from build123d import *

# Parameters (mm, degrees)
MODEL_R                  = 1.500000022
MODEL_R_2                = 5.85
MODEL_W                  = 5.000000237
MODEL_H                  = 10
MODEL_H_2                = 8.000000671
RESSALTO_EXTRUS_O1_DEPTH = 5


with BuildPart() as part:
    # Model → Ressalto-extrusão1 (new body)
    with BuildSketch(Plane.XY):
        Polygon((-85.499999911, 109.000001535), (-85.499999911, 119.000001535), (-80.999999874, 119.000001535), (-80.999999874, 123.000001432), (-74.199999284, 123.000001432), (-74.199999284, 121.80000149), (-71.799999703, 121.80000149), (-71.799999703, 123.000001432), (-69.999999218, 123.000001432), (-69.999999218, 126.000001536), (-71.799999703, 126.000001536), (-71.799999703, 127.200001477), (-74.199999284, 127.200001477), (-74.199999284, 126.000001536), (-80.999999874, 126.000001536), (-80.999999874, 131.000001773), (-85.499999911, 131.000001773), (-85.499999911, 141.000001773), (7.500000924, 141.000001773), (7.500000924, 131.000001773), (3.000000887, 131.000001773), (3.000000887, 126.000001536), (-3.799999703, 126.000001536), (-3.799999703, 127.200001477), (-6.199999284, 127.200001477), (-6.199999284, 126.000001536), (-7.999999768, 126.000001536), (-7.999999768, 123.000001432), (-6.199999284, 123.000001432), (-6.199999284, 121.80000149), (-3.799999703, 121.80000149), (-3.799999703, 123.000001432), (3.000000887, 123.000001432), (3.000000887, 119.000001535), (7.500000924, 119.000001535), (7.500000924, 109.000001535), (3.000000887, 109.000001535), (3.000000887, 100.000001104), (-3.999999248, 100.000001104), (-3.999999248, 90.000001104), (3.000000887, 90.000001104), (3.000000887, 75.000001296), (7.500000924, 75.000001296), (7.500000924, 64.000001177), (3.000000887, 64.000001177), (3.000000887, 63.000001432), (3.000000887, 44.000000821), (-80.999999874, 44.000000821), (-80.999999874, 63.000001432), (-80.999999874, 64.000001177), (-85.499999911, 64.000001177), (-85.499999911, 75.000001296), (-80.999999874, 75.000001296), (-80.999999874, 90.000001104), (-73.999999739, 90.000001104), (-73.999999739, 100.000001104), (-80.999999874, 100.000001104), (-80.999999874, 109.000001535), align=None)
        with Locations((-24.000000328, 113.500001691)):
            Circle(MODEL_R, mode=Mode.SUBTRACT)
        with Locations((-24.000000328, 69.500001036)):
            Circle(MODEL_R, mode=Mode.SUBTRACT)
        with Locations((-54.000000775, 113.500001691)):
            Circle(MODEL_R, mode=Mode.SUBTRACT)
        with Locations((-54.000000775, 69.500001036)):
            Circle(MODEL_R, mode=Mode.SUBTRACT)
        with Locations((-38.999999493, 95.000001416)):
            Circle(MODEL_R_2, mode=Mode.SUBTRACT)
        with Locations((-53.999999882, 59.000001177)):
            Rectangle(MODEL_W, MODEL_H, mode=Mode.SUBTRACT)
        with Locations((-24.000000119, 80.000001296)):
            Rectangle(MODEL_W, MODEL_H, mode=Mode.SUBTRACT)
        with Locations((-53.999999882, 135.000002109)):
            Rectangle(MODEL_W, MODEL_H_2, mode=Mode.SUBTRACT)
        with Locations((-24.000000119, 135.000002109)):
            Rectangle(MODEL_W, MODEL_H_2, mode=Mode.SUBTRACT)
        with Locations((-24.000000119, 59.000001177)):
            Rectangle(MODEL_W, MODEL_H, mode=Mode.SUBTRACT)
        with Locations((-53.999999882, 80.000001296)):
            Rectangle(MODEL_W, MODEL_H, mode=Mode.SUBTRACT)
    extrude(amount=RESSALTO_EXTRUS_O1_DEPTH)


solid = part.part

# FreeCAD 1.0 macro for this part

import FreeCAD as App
import Part
import Sketcher
from FreeCAD import Vector
Q = App.Units.Quantity


def add_polygon(sketch, points):
    """Adds a closed chain of lines whose ends are joined by coincident constraints."""
    first, n = sketch.GeometryCount, len(points)
    for a, b in zip(points, points[1:] + points[:1]):
        sketch.addGeometry(Part.LineSegment(App.Vector(*a, 0), App.Vector(*b, 0)), False)
    for i in range(n):
        sketch.addConstraint(Sketcher.Constraint("Coincident", first + i, 2, first + (i + 1) % n, 1))

doc = App.newDocument("Part")
params = doc.addObject("Spreadsheet::Sheet", "Params")
for row, (alias, value) in enumerate([
    ("sketch1_diameter", "3 mm"),
    ("sketch1_diameter2", "11.7 mm"),
    ("sketch1_width", "7 mm"),
    ("sketch1_width2", "84.000001 mm"),
    ("sketch1_width3", "93.000001 mm"),
    ("pad1_length", "5 mm"),
], start=1):
    params.set(f"A{row}", alias)
    params.set(f"B{row}", "=" + value)
    params.setAlias(f"B{row}", alias)

body = doc.addObject("PartDesign::Body", "Body")

# Sketch on XY plane
sketch1 = doc.addObject("Sketcher::SketchObject", "Sketch")
body.addObject(sketch1)
sketch1.AttachmentSupport = (doc.XY_Plane, [""])
sketch1.MapMode = "FlatFace"
add_polygon(sketch1, [(-85.5, 119), (-85.5, 109), (-81, 109), (-81, 100), (-74, 100), (-74, 90), (-81, 90), (-81, 75), (-85.5, 75), (-85.5, 64), (-81, 64), (-81, 44), (3, 44), (3, 64), (7.5, 64), (7.5, 75), (3, 75), (3, 90), (-4, 90), (-4, 100), (3, 100), (3, 109), (7.5, 109), (7.5, 119), (3, 119), (3, 123), (-3.8, 123), (-3.8, 121.8), (-6.2, 121.8), (-6.2, 123), (-8, 123), (-8, 126), (-6.2, 126), (-6.2, 127.2), (-3.8, 127.2), (-3.8, 126), (3, 126), (3, 131), (7.5, 131), (7.5, 141), (-85.5, 141), (-85.5, 131), (-81, 131), (-81, 126), (-74.2, 126), (-74.2, 127.2), (-71.8, 127.2), (-71.8, 126), (-70, 126), (-70, 123), (-71.8, 123), (-71.8, 121.8), (-74.2, 121.8), (-74.2, 123), (-81, 123), (-81, 119)])  # lines 0-55
add_polygon(sketch1, [(-26.5, 54), (-26.5, 64), (-21.5, 64), (-21.5, 54)])  # lines 56-59
sketch1.addGeometry(Part.Circle(Vector(-24, 69.5, 0), Vector(0, 0, 1), 1.5), False)  # 60
add_polygon(sketch1, [(-26.5, 75), (-26.5, 85), (-21.5, 85), (-21.5, 75)])  # lines 61-64
sketch1.addGeometry(Part.Circle(Vector(-39, 95, 0), Vector(0, 0, 1), 5.8), False)  # 65
add_polygon(sketch1, [(-56.5, 54), (-56.5, 64), (-51.5, 64), (-51.5, 54)])  # lines 66-69
sketch1.addGeometry(Part.Circle(Vector(-54, 69.5, 0), Vector(0, 0, 1), 1.5), False)  # 70
add_polygon(sketch1, [(-56.5, 75), (-56.5, 85), (-51.5, 85), (-51.5, 75)])  # lines 71-74
sketch1.addGeometry(Part.Circle(Vector(-24, 113.5, 0), Vector(0, 0, 1), 1.5), False)  # 75
add_polygon(sketch1, [(-26.5, 131), (-26.5, 139), (-21.5, 139), (-21.5, 131)])  # lines 76-79
sketch1.addGeometry(Part.Circle(Vector(-54, 113.5, 0), Vector(0, 0, 1), 1.5), False)  # 80
add_polygon(sketch1, [(-56.5, 131), (-56.5, 139), (-51.5, 139), (-51.5, 131)])  # lines 81-84
sketch1.addConstraint(Sketcher.Constraint("Vertical", 0))
sketch1.addConstraint(Sketcher.Constraint("Horizontal", 1))
sketch1.addConstraint(Sketcher.Constraint("Vertical", 2))
sketch1.addConstraint(Sketcher.Constraint("Horizontal", 3))
sketch1.addConstraint(Sketcher.Constraint("Vertical", 4))
sketch1.addConstraint(Sketcher.Constraint("Horizontal", 5))
sketch1.addConstraint(Sketcher.Constraint("Vertical", 6))
sketch1.addConstraint(Sketcher.Constraint("Horizontal", 7))
sketch1.addConstraint(Sketcher.Constraint("Vertical", 8))
sketch1.addConstraint(Sketcher.Constraint("Horizontal", 9))
sketch1.addConstraint(Sketcher.Constraint("Vertical", 10))
sketch1.addConstraint(Sketcher.Constraint("Horizontal", 11))
sketch1.addConstraint(Sketcher.Constraint("Vertical", 12))
sketch1.addConstraint(Sketcher.Constraint("Horizontal", 13))
sketch1.addConstraint(Sketcher.Constraint("Vertical", 14))
sketch1.addConstraint(Sketcher.Constraint("Horizontal", 15))
sketch1.addConstraint(Sketcher.Constraint("Vertical", 16))
sketch1.addConstraint(Sketcher.Constraint("Horizontal", 17))
sketch1.addConstraint(Sketcher.Constraint("Vertical", 18))
sketch1.addConstraint(Sketcher.Constraint("Horizontal", 19))
sketch1.addConstraint(Sketcher.Constraint("Vertical", 20))
sketch1.addConstraint(Sketcher.Constraint("Horizontal", 21))
sketch1.addConstraint(Sketcher.Constraint("Vertical", 22))
sketch1.addConstraint(Sketcher.Constraint("Horizontal", 23))
sketch1.addConstraint(Sketcher.Constraint("Vertical", 24))
sketch1.addConstraint(Sketcher.Constraint("Horizontal", 25))
sketch1.addConstraint(Sketcher.Constraint("Vertical", 26))
sketch1.addConstraint(Sketcher.Constraint("Horizontal", 27))
sketch1.addConstraint(Sketcher.Constraint("Vertical", 28))
sketch1.addConstraint(Sketcher.Constraint("Horizontal", 29))
sketch1.addConstraint(Sketcher.Constraint("Vertical", 30))
sketch1.addConstraint(Sketcher.Constraint("Horizontal", 31))
sketch1.addConstraint(Sketcher.Constraint("Vertical", 32))
sketch1.addConstraint(Sketcher.Constraint("Horizontal", 33))
sketch1.addConstraint(Sketcher.Constraint("Vertical", 34))
sketch1.addConstraint(Sketcher.Constraint("Horizontal", 35))
sketch1.addConstraint(Sketcher.Constraint("Vertical", 36))
sketch1.addConstraint(Sketcher.Constraint("Horizontal", 37))
sketch1.addConstraint(Sketcher.Constraint("Vertical", 38))
sketch1.addConstraint(Sketcher.Constraint("Horizontal", 39))
sketch1.addConstraint(Sketcher.Constraint("Vertical", 40))
sketch1.addConstraint(Sketcher.Constraint("Horizontal", 41))
sketch1.addConstraint(Sketcher.Constraint("Vertical", 42))
sketch1.addConstraint(Sketcher.Constraint("Horizontal", 43))
sketch1.addConstraint(Sketcher.Constraint("Vertical", 44))
sketch1.addConstraint(Sketcher.Constraint("Horizontal", 45))
sketch1.addConstraint(Sketcher.Constraint("Vertical", 46))
sketch1.addConstraint(Sketcher.Constraint("Horizontal", 47))
sketch1.addConstraint(Sketcher.Constraint("Vertical", 48))
sketch1.addConstraint(Sketcher.Constraint("Horizontal", 49))
sketch1.addConstraint(Sketcher.Constraint("Vertical", 50))
sketch1.addConstraint(Sketcher.Constraint("Horizontal", 51))
sketch1.addConstraint(Sketcher.Constraint("Vertical", 52))
sketch1.addConstraint(Sketcher.Constraint("Horizontal", 53))
sketch1.addConstraint(Sketcher.Constraint("Vertical", 54))
sketch1.addConstraint(Sketcher.Constraint("Horizontal", 55))
sketch1.addConstraint(Sketcher.Constraint("Vertical", 56))
sketch1.addConstraint(Sketcher.Constraint("Horizontal", 57))
sketch1.addConstraint(Sketcher.Constraint("Vertical", 58))
sketch1.addConstraint(Sketcher.Constraint("Horizontal", 59))
sketch1.addConstraint(Sketcher.Constraint("Vertical", 61))
sketch1.addConstraint(Sketcher.Constraint("Horizontal", 62))
sketch1.addConstraint(Sketcher.Constraint("Vertical", 63))
sketch1.addConstraint(Sketcher.Constraint("Horizontal", 64))
sketch1.addConstraint(Sketcher.Constraint("Vertical", 66))
sketch1.addConstraint(Sketcher.Constraint("Horizontal", 67))
sketch1.addConstraint(Sketcher.Constraint("Vertical", 68))
sketch1.addConstraint(Sketcher.Constraint("Horizontal", 69))
sketch1.addConstraint(Sketcher.Constraint("Vertical", 71))
sketch1.addConstraint(Sketcher.Constraint("Horizontal", 72))
sketch1.addConstraint(Sketcher.Constraint("Vertical", 73))
sketch1.addConstraint(Sketcher.Constraint("Horizontal", 74))
sketch1.addConstraint(Sketcher.Constraint("Vertical", 76))
sketch1.addConstraint(Sketcher.Constraint("Horizontal", 77))
sketch1.addConstraint(Sketcher.Constraint("Vertical", 78))
sketch1.addConstraint(Sketcher.Constraint("Horizontal", 79))
sketch1.addConstraint(Sketcher.Constraint("Vertical", 81))
sketch1.addConstraint(Sketcher.Constraint("Horizontal", 82))
sketch1.addConstraint(Sketcher.Constraint("Vertical", 83))
sketch1.addConstraint(Sketcher.Constraint("Horizontal", 84))
sketch1.addConstraint(Sketcher.Constraint("Equal", 60, 70))
sketch1.addConstraint(Sketcher.Constraint("Equal", 70, 75))
sketch1.addConstraint(Sketcher.Constraint("Equal", 75, 80))
sketch1.addConstraint(Sketcher.Constraint("Horizontal", 60, 3, 70, 3))
sketch1.addConstraint(Sketcher.Constraint("Horizontal", 75, 3, 80, 3))
sketch1.addConstraint(Sketcher.Constraint("Horizontal", 9, 2, 12, 2))
sketch1.addConstraint(Sketcher.Constraint("Horizontal", 7, 2, 14, 2))
sketch1.addConstraint(Sketcher.Constraint("Horizontal", 5, 2, 16, 2))
sketch1.addConstraint(Sketcher.Constraint("Horizontal", 3, 2, 18, 2))
sketch1.addConstraint(Sketcher.Constraint("Horizontal", 1, 2, 20, 2))
sketch1.addConstraint(Sketcher.Constraint("Horizontal", 25, 2, 28, 2))
sketch1.addConstraint(Sketcher.Constraint("Horizontal", 31, 2, 34, 2))
sketch1.addConstraint(Sketcher.Constraint("Horizontal", 37, 2, 40, 2))
sketch1.addConstraint(Sketcher.Constraint("Horizontal", 35, 2, 42, 2))
sketch1.addConstraint(Sketcher.Constraint("Horizontal", 33, 2, 44, 2))
sketch1.addConstraint(Sketcher.Constraint("Horizontal", 43, 2, 46, 2))
sketch1.addConstraint(Sketcher.Constraint("Horizontal", 29, 2, 48, 2))
sketch1.addConstraint(Sketcher.Constraint("Horizontal", 27, 2, 50, 2))
sketch1.addConstraint(Sketcher.Constraint("Horizontal", 49, 2, 52, 2))
sketch1.addConstraint(Sketcher.Constraint("Horizontal", 23, 2, 54, 2))
sketch1.addConstraint(Sketcher.Constraint("Horizontal", 13, 2, 56, 2))
sketch1.addConstraint(Sketcher.Constraint("Horizontal", 15, 2, 63, 2))
sketch1.addConstraint(Sketcher.Constraint("Horizontal", 57, 2, 66, 2))
sketch1.addConstraint(Sketcher.Constraint("Horizontal", 59, 2, 68, 2))
sketch1.addConstraint(Sketcher.Constraint("Horizontal", 62, 2, 71, 2))
sketch1.addConstraint(Sketcher.Constraint("Horizontal", 64, 2, 73, 2))
sketch1.addConstraint(Sketcher.Constraint("Horizontal", 41, 2, 78, 2))
sketch1.addConstraint(Sketcher.Constraint("Horizontal", 77, 2, 81, 2))
sketch1.addConstraint(Sketcher.Constraint("Horizontal", 79, 2, 83, 2))
sketch1.addConstraint(Sketcher.Constraint("Vertical", 60, 3, 75, 3))
sketch1.addConstraint(Sketcher.Constraint("Vertical", 70, 3, 80, 3))
sketch1.addConstraint(Sketcher.Constraint("Vertical", 2, 2, 5, 2))
sketch1.addConstraint(Sketcher.Constraint("Vertical", 0, 2, 7, 2))
sketch1.addConstraint(Sketcher.Constraint("Vertical", 6, 2, 9, 2))
sketch1.addConstraint(Sketcher.Constraint("Vertical", 12, 2, 15, 2))
sketch1.addConstraint(Sketcher.Constraint("Vertical", 16, 2, 19, 2))
sketch1.addConstraint(Sketcher.Constraint("Vertical", 14, 2, 21, 2))
sketch1.addConstraint(Sketcher.Constraint("Vertical", 20, 2, 23, 2))
sketch1.addConstraint(Sketcher.Constraint("Vertical", 28, 2, 31, 2))
sketch1.addConstraint(Sketcher.Constraint("Vertical", 26, 2, 33, 2))
sketch1.addConstraint(Sketcher.Constraint("Vertical", 24, 2, 35, 2))
sketch1.addConstraint(Sketcher.Constraint("Vertical", 22, 2, 37, 2))
sketch1.addConstraint(Sketcher.Constraint("Vertical", 8, 2, 39, 2))
sketch1.addConstraint(Sketcher.Constraint("Vertical", 10, 2, 41, 2))
sketch1.addConstraint(Sketcher.Constraint("Vertical", 46, 2, 49, 2))
sketch1.addConstraint(Sketcher.Constraint("Vertical", 44, 2, 51, 2))
sketch1.addConstraint(Sketcher.Constraint("Vertical", 42, 2, 53, 2))
sketch1.addConstraint(Sketcher.Constraint("Vertical", 59, 2, 61, 2))
sketch1.addConstraint(Sketcher.Constraint("Vertical", 58, 2, 62, 2))
sketch1.addConstraint(Sketcher.Constraint("Vertical", 69, 2, 71, 2))
sketch1.addConstraint(Sketcher.Constraint("Vertical", 68, 2, 72, 2))
sketch1.addConstraint(Sketcher.Constraint("Vertical", 64, 2, 76, 2))
sketch1.addConstraint(Sketcher.Constraint("Vertical", 63, 2, 77, 2))
sketch1.addConstraint(Sketcher.Constraint("Vertical", 74, 2, 81, 2))
sketch1.addConstraint(Sketcher.Constraint("Vertical", 73, 2, 82, 2))
sketch1.addConstraint(Sketcher.Constraint("Equal", 9, 13))
sketch1.addConstraint(Sketcher.Constraint("Equal", 5, 17))
sketch1.addConstraint(Sketcher.Constraint("Equal", 35, 43))
sketch1.addConstraint(Sketcher.Constraint("Equal", 33, 45))
sketch1.addConstraint(Sketcher.Constraint("Equal", 31, 47))
sketch1.addConstraint(Sketcher.Constraint("Equal", 64, 67))
sketch1.addConstraint(Sketcher.Constraint("Equal", 0, 4))
sketch1.addConstraint(Sketcher.Constraint("Equal", 28, 32))
sketch1.addConstraint(Sketcher.Constraint("Equal", 84, 36))
sketch1.addConstraint(Sketcher.Constraint("Equal", 22, 38))
sketch1.addConstraint(Sketcher.Constraint("Equal", 40, 56))
sketch1.addConstraint(Sketcher.Constraint("Equal", 58, 61))
sketch1.addConstraint(Sketcher.Constraint("Diameter", 60, Q("3 mm")))
sketch1.addConstraint(Sketcher.Constraint("Diameter", 65, Q("11.7 mm")))
sketch1.addConstraint(Sketcher.Constraint("DistanceX", 3, 1, 3, 2, Q("7 mm")))
sketch1.addConstraint(Sketcher.Constraint("DistanceX", 11, 1, 11, 2, Q("84.000001 mm")))
sketch1.addConstraint(Sketcher.Constraint("DistanceX", 39, 2, 39, 1, Q("93.000001 mm")))
sketch1.addConstraint(Sketcher.Constraint("DistanceX", 57, 1, 57, 2, Q("5 mm")))
sketch1.addConstraint(Sketcher.Constraint("DistanceY", 0, 2, 0, 1, Q("10 mm")))
sketch1.addConstraint(Sketcher.Constraint("DistanceY", 2, 2, 2, 1, Q("9 mm")))
sketch1.addConstraint(Sketcher.Constraint("DistanceY", 6, 2, 6, 1, Q("15 mm")))
sketch1.addConstraint(Sketcher.Constraint("DistanceY", 8, 2, 8, 1, Q("11 mm")))
sketch1.addConstraint(Sketcher.Constraint("DistanceY", 10, 2, 10, 1, Q("20 mm")))
sketch1.addConstraint(Sketcher.Constraint("DistanceY", 24, 1, 24, 2, Q("4 mm")))
sketch1.addConstraint(Sketcher.Constraint("DistanceY", 30, 1, 30, 2, Q("3 mm")))
sketch1.addConstraint(Sketcher.Constraint("DistanceY", 76, 1, 76, 2, Q("8.000001 mm")))
sketch1.addConstraint(Sketcher.Constraint("DistanceX", 25, 2, 25, 1, Q("6.800001 mm")))
sketch1.addConstraint(Sketcher.Constraint("DistanceX", 27, 2, 27, 1, Q("2.4 mm")))
sketch1.addConstraint(Sketcher.Constraint("DistanceX", 29, 2, 29, 1, Q("1.8 mm")))
sketch1.addConstraint(Sketcher.Constraint("DistanceY", 26, 2, 26, 1, Q("1.2 mm")))
sketch1.addConstraint(Sketcher.Constraint("DistanceX", 60, 3, -1, 1, Q("24 mm")))
sketch1.addConstraint(Sketcher.Constraint("DistanceX", 65, 3, -1, 1, Q("38.999999 mm")))
sketch1.addConstraint(Sketcher.Constraint("DistanceY", -1, 1, 65, 3, Q("95.000001 mm")))
sketch1.addConstraint(Sketcher.Constraint("DistanceX", 70, 3, -1, 1, Q("54.000001 mm")))
sketch1.addConstraint(Sketcher.Constraint("DistanceY", -1, 1, 0, 2, Q("109.000002 mm")))
sketch1.addConstraint(Sketcher.Constraint("DistanceX", 1, 2, -1, 1, Q("81 mm")))
sketch1.addConstraint(Sketcher.Constraint("DistanceY", -1, 1, 60, 3, Q("69.500001 mm")))
sketch1.addConstraint(Sketcher.Constraint("DistanceY", -1, 1, 75, 3, Q("113.500002 mm")))
sketch1.addConstraint(Sketcher.Constraint("DistanceX", 56, 2, -1, 1, Q("26.5 mm")))
sketch1.addConstraint(Sketcher.Constraint("DistanceX", 66, 2, -1, 1, Q("56.5 mm")))
sketch1.setExpression("Constraints[227]", "Params.sketch1_diameter")
sketch1.setExpression("Constraints[228]", "Params.sketch1_diameter2")
sketch1.setExpression("Constraints[229]", "Params.sketch1_width")
sketch1.setExpression("Constraints[230]", "Params.sketch1_width2")
sketch1.setExpression("Constraints[231]", "Params.sketch1_width3")
pad1 = doc.addObject("PartDesign::Pad", "Pad")
body.addObject(pad1)
pad1.Profile = sketch1
pad1.setExpression("Length", "Params.pad1_length")

doc.recompute()
